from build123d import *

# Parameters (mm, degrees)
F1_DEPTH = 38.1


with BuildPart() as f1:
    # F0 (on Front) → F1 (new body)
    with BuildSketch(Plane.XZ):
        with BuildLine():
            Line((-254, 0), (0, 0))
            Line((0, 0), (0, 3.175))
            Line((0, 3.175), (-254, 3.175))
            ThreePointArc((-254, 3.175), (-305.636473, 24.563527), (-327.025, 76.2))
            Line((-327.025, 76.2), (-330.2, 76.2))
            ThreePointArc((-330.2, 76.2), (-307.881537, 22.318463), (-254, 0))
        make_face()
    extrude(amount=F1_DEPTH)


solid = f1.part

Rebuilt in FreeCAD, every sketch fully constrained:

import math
import FreeCAD as App
import Part
import Sketcher
from FreeCAD import Vector
Q = App.Units.Quantity

doc = App.newDocument("Part")
params = doc.addObject("Spreadsheet::Sheet", "Params")
for row, (alias, value) in enumerate([
    ("sketch1_radius", "3 in"),
    ("sketch1_width", "10 in"),
    ("sketch1_radius2", "2.875 in"),
    ("pad1_length", "1.5 in"),
], start=1):
    params.set(f"A{row}", alias)
    params.set(f"B{row}", "=" + value)
    params.setAlias(f"B{row}", alias)

body = doc.addObject("PartDesign::Body", "Body")

# Sketch on XZ plane
sketch1 = doc.addObject("Sketcher::SketchObject", "Sketch")
body.addObject(sketch1)
sketch1.AttachmentSupport = (doc.XZ_Plane, [""])
sketch1.MapMode = "FlatFace"
sketch1.addGeometry(Part.LineSegment(Vector(-254, 0, 0), Vector(0, 0, 0)), False)
sketch1.addGeometry(Part.LineSegment(Vector(0, 0, 0), Vector(0, 3.2, 0)), False)
sketch1.addGeometry(Part.LineSegment(Vector(0, 3.2, 0), Vector(-254, 3.2, 0)), False)
sketch1.addGeometry(Part.ArcOfCircle(Part.Circle(Vector(-254, 76.2, 0), Vector(0, 0, 1), 73), math.radians(180), math.radians(270)), False)
sketch1.addGeometry(Part.LineSegment(Vector(-327, 76.2, 0), Vector(-330.2, 76.2, 0)), False)
sketch1.addGeometry(Part.ArcOfCircle(Part.Circle(Vector(-254, 76.2, 0), Vector(0, 0, 1), 76.2), math.radians(180), math.radians(270)), False)
sketch1.addConstraint(Sketcher.Constraint("Coincident", 0, 2, 1, 1))
sketch1.addConstraint(Sketcher.Constraint("Coincident", 1, 2, 2, 1))
sketch1.addConstraint(Sketcher.Constraint("Tangent", 2, 2, 3, 2))
sketch1.addConstraint(Sketcher.Constraint("Coincident", 3, 1, 4, 1))
sketch1.addConstraint(Sketcher.Constraint("Coincident", 4, 2, 5, 1))
sketch1.addConstraint(Sketcher.Constraint("Tangent", 5, 2, 0, 1))
sketch1.addConstraint(Sketcher.Constraint("Horizontal", 0))
sketch1.addConstraint(Sketcher.Constraint("Vertical", 1))
sketch1.addConstraint(Sketcher.Constraint("Horizontal", 2))
sketch1.addConstraint(Sketcher.Constraint("Horizontal", 4))
sketch1.addConstraint(Sketcher.Constraint("Coincident", 0, 2, -1, 1))
sketch1.addConstraint(Sketcher.Constraint("Coincident", 5, 3, 3, 3))
sketch1.addConstraint(Sketcher.Constraint("Horizontal", 5, 3, 3, 1))
sketch1.addConstraint(Sketcher.Constraint("Radius", 5, Q("3 in")))
sketch1.addConstraint(Sketcher.Constraint("DistanceX", 0, 1, 0, 2, Q("10 in")))
sketch1.addConstraint(Sketcher.Constraint("Radius", 3, Q("2.875 in")))
sketch1.setExpression("Constraints[13]", "Params.sketch1_radius")
sketch1.setExpression("Constraints[14]", "Params.sketch1_width")
sketch1.setExpression("Constraints[15]", "Params.sketch1_radius2")
pad1 = doc.addObject("PartDesign::Pad", "Pad")
body.addObject(pad1)
pad1.Profile = sketch1
pad1.setExpression("Length", "Params.pad1_length")

doc.recompute()
